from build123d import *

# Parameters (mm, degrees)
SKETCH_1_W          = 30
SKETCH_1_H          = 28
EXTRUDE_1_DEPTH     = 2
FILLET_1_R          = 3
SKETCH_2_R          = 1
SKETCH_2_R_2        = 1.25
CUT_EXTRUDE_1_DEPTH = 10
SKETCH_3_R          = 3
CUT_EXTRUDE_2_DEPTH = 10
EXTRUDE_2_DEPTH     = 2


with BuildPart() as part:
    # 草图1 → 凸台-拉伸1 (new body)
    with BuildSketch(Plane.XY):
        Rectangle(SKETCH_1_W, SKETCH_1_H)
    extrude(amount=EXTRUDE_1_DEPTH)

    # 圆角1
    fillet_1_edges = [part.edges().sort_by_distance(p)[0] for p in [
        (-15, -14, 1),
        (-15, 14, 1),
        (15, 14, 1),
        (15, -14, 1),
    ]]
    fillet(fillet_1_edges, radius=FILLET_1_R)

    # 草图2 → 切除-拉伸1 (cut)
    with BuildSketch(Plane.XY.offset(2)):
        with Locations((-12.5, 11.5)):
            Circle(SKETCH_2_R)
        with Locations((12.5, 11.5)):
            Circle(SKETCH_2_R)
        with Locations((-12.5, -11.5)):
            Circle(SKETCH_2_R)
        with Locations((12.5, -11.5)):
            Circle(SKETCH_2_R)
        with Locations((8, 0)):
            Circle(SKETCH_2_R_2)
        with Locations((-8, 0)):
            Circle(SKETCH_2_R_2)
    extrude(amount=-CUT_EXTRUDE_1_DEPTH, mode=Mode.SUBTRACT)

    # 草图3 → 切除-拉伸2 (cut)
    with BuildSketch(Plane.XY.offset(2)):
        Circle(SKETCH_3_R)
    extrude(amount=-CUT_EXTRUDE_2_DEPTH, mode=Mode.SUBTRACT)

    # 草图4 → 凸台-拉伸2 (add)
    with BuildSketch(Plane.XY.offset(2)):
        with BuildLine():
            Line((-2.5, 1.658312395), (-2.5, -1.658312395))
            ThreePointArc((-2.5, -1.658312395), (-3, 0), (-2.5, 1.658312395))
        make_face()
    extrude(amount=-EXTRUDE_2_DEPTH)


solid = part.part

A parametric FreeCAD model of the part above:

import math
import FreeCAD as App
import Part
import Sketcher
from FreeCAD import Vector


def edges_at(feature, points):
    """Names of the edges that pass closest to the given points."""
    edges = feature.Shape.Edges
    near = lambda p: min(range(len(edges)), key=lambda i: edges[i].distToShape(Part.Vertex(*p))[0])
    return sorted({f"Edge{near(p) + 1}" for p in points})


def add_polygon(sketch, points):
    """Adds a closed chain of lines whose ends are joined by coincident constraints."""
    first, n = sketch.GeometryCount, len(points)
    for a, b in zip(points, points[1:] + points[:1]):
        sketch.addGeometry(Part.LineSegment(App.Vector(*a, 0), App.Vector(*b, 0)), False)
    for i in range(n):
        sketch.addConstraint(Sketcher.Constraint("Coincident", first + i, 2, first + (i + 1) % n, 1))

doc = App.newDocument("Part")
body = doc.addObject("PartDesign::Body", "Body")

sketch1 = doc.addObject("Sketcher::SketchObject", "Sketch")
body.addObject(sketch1)
sketch1.AttachmentSupport = (doc.XY_Plane, [""])
sketch1.MapMode = "FlatFace"
add_polygon(sketch1, [(-15, 14), (-15, -14), (15, -14), (15, 14)])
sketch1.addConstraint([
    Sketcher.Constraint("Vertical", 0),
    Sketcher.Constraint("Horizontal", 1),
    Sketcher.Constraint("Vertical", 2),
    Sketcher.Constraint("Horizontal", 3),
    Sketcher.Constraint("Symmetric", 0, 2, 2, 2, -1, 1),
    Sketcher.Constraint("DistanceX", 1, 1, 1, 2, 30.0),
    Sketcher.Constraint("DistanceY", 0, 2, 0, 1, 28.0),
])
pad1 = doc.addObject("PartDesign::Pad", "Pad")
body.addObject(pad1)
pad1.Profile = sketch1
pad1.Length = 2
doc.recompute()

fillet = doc.addObject("PartDesign::Fillet", "Fillet")
body.addObject(fillet)
fillet.Base = (pad1, edges_at(pad1, [
    (-15, -14, 1),
    (-15, 14, 1),
    (15, 14, 1),
    (15, -14, 1),
]))
fillet.Radius = 3

sketch2 = doc.addObject("Sketcher::SketchObject", "Sketch001")
body.addObject(sketch2)
sketch2.AttachmentSupport = (doc.XY_Plane, [""])
sketch2.MapMode = "FlatFace"
sketch2.AttachmentOffset = App.Placement(Vector(0, 0, 2), App.Rotation())
sketch2.addGeometry([
    Part.Circle(Vector(-12.5, 11.5, 0), Vector(0, 0, 1), 1),
    Part.Circle(Vector(12.5, 11.5, 0), Vector(0, 0, 1), 1),
    Part.Circle(Vector(-12.5, -11.5, 0), Vector(0, 0, 1), 1),
    Part.Circle(Vector(12.5, -11.5, 0), Vector(0, 0, 1), 1),
    Part.Circle(Vector(8, 0, 0), Vector(0, 0, 1), 1.25),
    Part.Circle(Vector(-8, 0, 0), Vector(0, 0, 1), 1.25),
], False)
sketch2.addConstraint([
    Sketcher.Constraint("Equal", 0, 1),
    Sketcher.Constraint("Equal", 1, 2),
    Sketcher.Constraint("Equal", 2, 3),
    Sketcher.Constraint("Equal", 4, 5),
    Sketcher.Constraint("Symmetric", 1, 3, 2, 3, -1, 1),
    Sketcher.Constraint("Symmetric", 0, 3, 3, 3, -1, 1),
    Sketcher.Constraint("Symmetric", 4, 3, 5, 3, -1, 1),
    Sketcher.Constraint("Symmetric", 0, 3, 1, 3, -2),
    Sketcher.Constraint("PointOnObject", 4, 3, -1),
    Sketcher.Constraint("Diameter", 0, 2.0),
    Sketcher.Constraint("Diameter", 4, 2.5),
    Sketcher.Constraint("DistanceX", -1, 1, 4, 3, 8.0),
    Sketcher.Constraint("DistanceX", 0, 3, 1, 3, 25.0),
    Sketcher.Constraint("DistanceY", 2, 3, 0, 3, 23.0),
])
pocket1 = doc.addObject("PartDesign::Pocket", "Pocket")
body.addObject(pocket1)
pocket1.Profile = sketch2
pocket1.Length = 10

sketch3 = doc.addObject("Sketcher::SketchObject", "Sketch002")
body.addObject(sketch3)
sketch3.AttachmentSupport = (doc.XY_Plane, [""])
sketch3.MapMode = "FlatFace"
sketch3.AttachmentOffset = App.Placement(Vector(0, 0, 2), App.Rotation())
sketch3.addGeometry(Part.Circle(Vector(0, 0, 0), Vector(0, 0, 1), 3), False)
sketch3.addConstraint([
    Sketcher.Constraint("Coincident", 0, 3, -1, 1),
    Sketcher.Constraint("Diameter", 0, 6.0),
])
pocket2 = doc.addObject("PartDesign::Pocket", "Pocket001")
body.addObject(pocket2)
pocket2.Profile = sketch3
pocket2.Length = 10

sketch4 = doc.addObject("Sketcher::SketchObject", "Sketch003")
body.addObject(sketch4)
sketch4.AttachmentSupport = (doc.XY_Plane, [""])
sketch4.MapMode = "FlatFace"
sketch4.AttachmentOffset = App.Placement(Vector(0, 0, 2), App.Rotation())
sketch4.addGeometry([
    Part.LineSegment(Vector(-2.5, -1.658312, 0), Vector(-2.5, 1.658312, 0)),
    Part.ArcOfCircle(Part.Circle(Vector(0, 0, 0), Vector(0, 0, 1), 3), math.radians(146.44269), math.radians(213.55731)),
], False)
sketch4.addConstraint([
    Sketcher.Constraint("Coincident", 0, 1, 1, 2),
    Sketcher.Constraint("Coincident", 1, 1, 0, 2),
    Sketcher.Constraint("Vertical", 0),
    Sketcher.Constraint("Coincident", 1, 3, -1, 1),
    Sketcher.Constraint("Radius", 1, 3.0),
    Sketcher.Constraint("DistanceX", 0, 1, -1, 1, 2.5),
])
pad2 = doc.addObject("PartDesign::Pad", "Pad001")
body.addObject(pad2)
pad2.Profile = sketch4
pad2.Length = 2
pad2.Reversed = True

doc.recompute()
